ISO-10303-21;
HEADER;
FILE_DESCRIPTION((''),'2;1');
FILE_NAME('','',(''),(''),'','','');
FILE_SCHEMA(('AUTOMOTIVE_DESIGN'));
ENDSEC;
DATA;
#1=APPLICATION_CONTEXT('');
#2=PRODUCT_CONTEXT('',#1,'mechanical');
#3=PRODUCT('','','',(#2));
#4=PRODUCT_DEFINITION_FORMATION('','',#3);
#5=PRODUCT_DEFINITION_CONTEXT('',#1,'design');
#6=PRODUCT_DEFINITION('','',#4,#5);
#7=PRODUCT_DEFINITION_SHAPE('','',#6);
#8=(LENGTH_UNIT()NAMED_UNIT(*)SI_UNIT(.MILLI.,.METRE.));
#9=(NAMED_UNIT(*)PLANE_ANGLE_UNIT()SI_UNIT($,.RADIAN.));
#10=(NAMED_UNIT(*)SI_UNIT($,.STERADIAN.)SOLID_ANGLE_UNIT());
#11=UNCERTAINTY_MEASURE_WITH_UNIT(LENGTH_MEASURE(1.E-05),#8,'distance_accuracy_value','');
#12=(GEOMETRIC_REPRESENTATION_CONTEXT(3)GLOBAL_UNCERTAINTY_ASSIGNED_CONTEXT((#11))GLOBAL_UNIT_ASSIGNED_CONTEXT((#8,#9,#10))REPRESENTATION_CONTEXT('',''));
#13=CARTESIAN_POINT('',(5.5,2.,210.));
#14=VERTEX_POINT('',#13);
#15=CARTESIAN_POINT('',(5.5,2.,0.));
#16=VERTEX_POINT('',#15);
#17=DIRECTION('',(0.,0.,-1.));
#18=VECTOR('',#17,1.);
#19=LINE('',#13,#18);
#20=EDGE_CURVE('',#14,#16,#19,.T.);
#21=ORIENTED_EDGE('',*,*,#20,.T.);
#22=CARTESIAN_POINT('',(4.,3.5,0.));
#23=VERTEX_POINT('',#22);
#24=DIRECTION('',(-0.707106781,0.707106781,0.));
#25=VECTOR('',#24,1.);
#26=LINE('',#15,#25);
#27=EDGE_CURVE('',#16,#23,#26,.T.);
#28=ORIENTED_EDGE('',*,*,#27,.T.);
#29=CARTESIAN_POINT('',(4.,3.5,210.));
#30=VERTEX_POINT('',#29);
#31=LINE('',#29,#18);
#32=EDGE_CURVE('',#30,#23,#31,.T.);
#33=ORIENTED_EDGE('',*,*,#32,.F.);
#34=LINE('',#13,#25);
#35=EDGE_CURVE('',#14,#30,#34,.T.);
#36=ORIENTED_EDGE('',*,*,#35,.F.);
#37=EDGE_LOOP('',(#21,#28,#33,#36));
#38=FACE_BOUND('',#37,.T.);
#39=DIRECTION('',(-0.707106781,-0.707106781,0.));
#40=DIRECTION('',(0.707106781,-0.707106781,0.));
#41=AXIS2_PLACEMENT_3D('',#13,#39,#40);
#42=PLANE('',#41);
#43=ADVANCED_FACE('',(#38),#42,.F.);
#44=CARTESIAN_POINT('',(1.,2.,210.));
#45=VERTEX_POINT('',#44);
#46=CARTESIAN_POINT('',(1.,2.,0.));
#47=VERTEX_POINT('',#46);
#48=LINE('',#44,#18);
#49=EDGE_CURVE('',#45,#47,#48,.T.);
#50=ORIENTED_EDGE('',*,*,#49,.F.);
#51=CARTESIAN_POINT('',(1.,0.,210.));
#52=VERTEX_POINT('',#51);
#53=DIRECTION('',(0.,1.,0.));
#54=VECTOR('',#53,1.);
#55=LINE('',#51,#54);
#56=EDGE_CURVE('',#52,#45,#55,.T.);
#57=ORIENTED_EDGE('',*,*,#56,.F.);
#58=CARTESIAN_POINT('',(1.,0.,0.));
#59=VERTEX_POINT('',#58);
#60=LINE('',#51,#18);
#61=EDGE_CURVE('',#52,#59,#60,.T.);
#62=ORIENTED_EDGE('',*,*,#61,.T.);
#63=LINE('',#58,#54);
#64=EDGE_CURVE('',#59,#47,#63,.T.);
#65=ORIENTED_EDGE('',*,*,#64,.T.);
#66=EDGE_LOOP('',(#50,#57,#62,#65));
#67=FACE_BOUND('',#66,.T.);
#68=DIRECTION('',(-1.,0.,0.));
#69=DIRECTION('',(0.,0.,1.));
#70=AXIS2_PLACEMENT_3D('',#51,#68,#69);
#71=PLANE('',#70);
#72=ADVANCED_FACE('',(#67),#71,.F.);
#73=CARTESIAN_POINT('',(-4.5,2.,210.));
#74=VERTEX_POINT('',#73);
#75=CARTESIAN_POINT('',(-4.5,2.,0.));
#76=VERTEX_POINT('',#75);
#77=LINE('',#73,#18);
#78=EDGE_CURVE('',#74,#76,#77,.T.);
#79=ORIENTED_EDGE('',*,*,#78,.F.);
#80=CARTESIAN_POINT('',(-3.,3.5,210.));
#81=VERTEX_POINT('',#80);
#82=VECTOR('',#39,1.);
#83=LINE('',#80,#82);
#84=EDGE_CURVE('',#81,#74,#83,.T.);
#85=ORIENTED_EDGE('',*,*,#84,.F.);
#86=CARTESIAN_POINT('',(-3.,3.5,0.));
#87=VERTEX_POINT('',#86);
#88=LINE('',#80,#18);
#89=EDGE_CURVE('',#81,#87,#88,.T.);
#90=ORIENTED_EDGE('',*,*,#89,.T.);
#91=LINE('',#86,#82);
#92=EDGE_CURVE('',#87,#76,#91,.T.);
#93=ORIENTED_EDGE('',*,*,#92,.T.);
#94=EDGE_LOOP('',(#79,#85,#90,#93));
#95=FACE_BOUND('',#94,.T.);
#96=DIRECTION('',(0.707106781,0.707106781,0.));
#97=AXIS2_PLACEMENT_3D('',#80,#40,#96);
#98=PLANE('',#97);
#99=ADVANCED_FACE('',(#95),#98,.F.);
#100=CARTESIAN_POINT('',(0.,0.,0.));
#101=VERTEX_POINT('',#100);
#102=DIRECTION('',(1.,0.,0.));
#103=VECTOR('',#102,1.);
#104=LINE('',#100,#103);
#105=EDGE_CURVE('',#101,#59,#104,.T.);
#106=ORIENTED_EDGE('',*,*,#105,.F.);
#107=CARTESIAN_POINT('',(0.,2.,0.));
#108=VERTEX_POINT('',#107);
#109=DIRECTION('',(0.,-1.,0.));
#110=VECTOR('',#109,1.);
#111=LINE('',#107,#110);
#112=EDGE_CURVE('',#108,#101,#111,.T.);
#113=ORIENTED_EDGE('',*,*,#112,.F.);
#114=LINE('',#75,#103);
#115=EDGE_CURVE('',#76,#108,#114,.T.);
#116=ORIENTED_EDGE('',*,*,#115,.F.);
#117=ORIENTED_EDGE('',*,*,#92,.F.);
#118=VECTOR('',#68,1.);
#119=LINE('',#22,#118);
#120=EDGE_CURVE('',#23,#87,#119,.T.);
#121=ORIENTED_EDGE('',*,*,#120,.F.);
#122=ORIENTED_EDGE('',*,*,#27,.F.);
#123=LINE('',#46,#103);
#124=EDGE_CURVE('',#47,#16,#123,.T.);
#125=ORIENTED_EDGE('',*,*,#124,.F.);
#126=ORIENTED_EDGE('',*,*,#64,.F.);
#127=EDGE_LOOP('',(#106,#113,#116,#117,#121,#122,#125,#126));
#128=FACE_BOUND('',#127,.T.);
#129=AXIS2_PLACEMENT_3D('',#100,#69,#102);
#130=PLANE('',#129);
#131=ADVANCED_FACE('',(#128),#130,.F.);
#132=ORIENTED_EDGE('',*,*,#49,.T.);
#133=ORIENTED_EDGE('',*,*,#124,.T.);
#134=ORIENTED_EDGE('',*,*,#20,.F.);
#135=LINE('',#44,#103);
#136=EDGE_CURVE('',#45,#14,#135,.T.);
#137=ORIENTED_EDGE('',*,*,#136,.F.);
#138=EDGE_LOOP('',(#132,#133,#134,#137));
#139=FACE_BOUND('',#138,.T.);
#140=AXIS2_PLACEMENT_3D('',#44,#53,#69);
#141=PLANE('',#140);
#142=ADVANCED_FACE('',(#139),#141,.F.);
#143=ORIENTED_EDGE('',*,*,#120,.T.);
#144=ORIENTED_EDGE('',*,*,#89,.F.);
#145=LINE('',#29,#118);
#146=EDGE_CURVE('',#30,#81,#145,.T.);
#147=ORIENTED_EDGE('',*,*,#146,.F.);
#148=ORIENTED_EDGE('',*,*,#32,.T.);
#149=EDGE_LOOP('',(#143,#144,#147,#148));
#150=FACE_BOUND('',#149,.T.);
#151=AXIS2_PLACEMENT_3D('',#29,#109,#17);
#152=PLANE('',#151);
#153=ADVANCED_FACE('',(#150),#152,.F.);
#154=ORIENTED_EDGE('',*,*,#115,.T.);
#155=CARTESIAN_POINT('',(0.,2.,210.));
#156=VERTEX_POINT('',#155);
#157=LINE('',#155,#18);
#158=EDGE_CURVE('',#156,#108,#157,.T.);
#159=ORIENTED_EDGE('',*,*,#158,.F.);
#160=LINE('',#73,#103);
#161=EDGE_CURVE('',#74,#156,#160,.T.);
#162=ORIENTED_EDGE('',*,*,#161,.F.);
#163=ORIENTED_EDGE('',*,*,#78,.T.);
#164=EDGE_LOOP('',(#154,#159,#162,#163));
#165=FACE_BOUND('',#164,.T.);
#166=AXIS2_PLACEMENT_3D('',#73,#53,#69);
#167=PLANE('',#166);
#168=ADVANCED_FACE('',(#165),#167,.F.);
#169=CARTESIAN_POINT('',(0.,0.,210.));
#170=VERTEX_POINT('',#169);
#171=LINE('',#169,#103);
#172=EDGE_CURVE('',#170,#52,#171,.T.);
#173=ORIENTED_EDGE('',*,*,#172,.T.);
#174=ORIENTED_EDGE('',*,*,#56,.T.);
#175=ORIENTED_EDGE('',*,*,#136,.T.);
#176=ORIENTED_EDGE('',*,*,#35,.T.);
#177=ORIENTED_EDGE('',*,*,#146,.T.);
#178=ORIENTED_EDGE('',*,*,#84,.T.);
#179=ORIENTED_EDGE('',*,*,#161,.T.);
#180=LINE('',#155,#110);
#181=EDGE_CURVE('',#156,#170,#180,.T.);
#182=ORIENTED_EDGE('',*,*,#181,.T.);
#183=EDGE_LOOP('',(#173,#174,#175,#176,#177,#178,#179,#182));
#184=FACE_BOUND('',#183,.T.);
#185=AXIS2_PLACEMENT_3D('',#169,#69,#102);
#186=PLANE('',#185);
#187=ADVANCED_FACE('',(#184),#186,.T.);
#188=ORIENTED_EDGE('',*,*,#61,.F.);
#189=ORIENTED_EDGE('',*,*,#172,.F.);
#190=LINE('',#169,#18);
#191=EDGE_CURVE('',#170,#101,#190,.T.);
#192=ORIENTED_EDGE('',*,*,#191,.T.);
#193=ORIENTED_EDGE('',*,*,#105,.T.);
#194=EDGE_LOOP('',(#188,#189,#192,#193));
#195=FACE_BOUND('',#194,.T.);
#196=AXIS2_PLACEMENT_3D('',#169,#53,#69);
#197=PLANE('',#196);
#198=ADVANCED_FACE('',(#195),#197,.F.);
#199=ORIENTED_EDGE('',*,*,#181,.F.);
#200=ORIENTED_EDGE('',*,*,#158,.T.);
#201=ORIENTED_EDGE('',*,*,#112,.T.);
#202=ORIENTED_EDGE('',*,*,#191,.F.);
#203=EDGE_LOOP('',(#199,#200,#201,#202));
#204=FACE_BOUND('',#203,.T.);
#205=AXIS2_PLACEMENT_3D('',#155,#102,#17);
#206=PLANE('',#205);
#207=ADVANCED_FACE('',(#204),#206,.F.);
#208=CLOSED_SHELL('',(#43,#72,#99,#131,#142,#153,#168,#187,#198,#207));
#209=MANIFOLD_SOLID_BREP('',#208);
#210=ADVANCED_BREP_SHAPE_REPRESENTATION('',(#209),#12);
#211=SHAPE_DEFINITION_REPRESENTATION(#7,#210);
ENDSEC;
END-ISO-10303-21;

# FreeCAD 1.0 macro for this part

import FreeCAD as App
import Part
import Sketcher
Q = App.Units.Quantity

doc = App.newDocument("Part")
body = doc.addObject("PartDesign::Body", "Body")

# Sketch on XY plane
sketch1 = body.newObject("Sketcher::SketchObject", "Sketch")
sketch1.AttachmentSupport = (doc.getObject("XY_Plane"), [""])
sketch1.MapMode = "FlatFace"
sketch1.addGeometry(Part.LineSegment(App.Vector(0, 0, 0), App.Vector(1, 0, 0)), False)
sketch1.addGeometry(Part.LineSegment(App.Vector(1, 0, 0), App.Vector(1, 2, 0)), False)
sketch1.addGeometry(Part.LineSegment(App.Vector(1, 2, 0), App.Vector(5.5, 2, 0)), False)
sketch1.addGeometry(Part.LineSegment(App.Vector(5.5, 2, 0), App.Vector(4, 3.5, 0)), False)
sketch1.addGeometry(Part.LineSegment(App.Vector(4, 3.5, 0), App.Vector(-3, 3.5, 0)), False)
sketch1.addGeometry(Part.LineSegment(App.Vector(-3, 3.5, 0), App.Vector(-4.5, 2, 0)), False)
sketch1.addGeometry(Part.LineSegment(App.Vector(-4.5, 2, 0), App.Vector(0, 2, 0)), False)
sketch1.addGeometry(Part.LineSegment(App.Vector(0, 2, 0), App.Vector(0, 0, 0)), False)
sketch1.addConstraint(Sketcher.Constraint("Coincident", 0, 2, 1, 1))
sketch1.addConstraint(Sketcher.Constraint("Coincident", 1, 2, 2, 1))
sketch1.addConstraint(Sketcher.Constraint("Coincident", 2, 2, 3, 1))
sketch1.addConstraint(Sketcher.Constraint("Coincident", 3, 2, 4, 1))
sketch1.addConstraint(Sketcher.Constraint("Coincident", 4, 2, 5, 1))
sketch1.addConstraint(Sketcher.Constraint("Coincident", 5, 2, 6, 1))
sketch1.addConstraint(Sketcher.Constraint("Coincident", 6, 2, 7, 1))
sketch1.addConstraint(Sketcher.Constraint("Coincident", 7, 2, 0, 1))
sketch1.addConstraint(Sketcher.Constraint("Horizontal", 0))
sketch1.addConstraint(Sketcher.Constraint("Vertical", 1))
sketch1.addConstraint(Sketcher.Constraint("Horizontal", 2))
sketch1.addConstraint(Sketcher.Constraint("Horizontal", 4))
sketch1.addConstraint(Sketcher.Constraint("Horizontal", 6))
sketch1.addConstraint(Sketcher.Constraint("Vertical", 7))
sketch1.addConstraint(Sketcher.Constraint("Coincident", 7, 2, -1, 1))
sketch1.addConstraint(Sketcher.Constraint("Perpendicular", 3, 5))
sketch1.addConstraint(Sketcher.Constraint("Horizontal", 2, 2, 5, 2))
sketch1.addConstraint(Sketcher.Constraint("Equal", 2, 6))
sketch1.addConstraint(Sketcher.Constraint("Equal", 3, 5))
sketch1.addConstraint(Sketcher.Constraint("DistanceX", 0, 1, 0, 2, Q("1 mm")))
sketch1.addConstraint(Sketcher.Constraint("DistanceX", 4, 2, 4, 1, Q("7 mm")))
sketch1.addConstraint(Sketcher.Constraint("DistanceY", 1, 1, 1, 2, Q("2 mm")))
sketch1.addConstraint(Sketcher.Constraint("DistanceX", 2, 1, 2, 2, Q("4.5 mm")))
pad1 = body.newObject("PartDesign::Pad", "Pad")
pad1.Profile = sketch1
pad1.Length = 210

doc.recompute()
